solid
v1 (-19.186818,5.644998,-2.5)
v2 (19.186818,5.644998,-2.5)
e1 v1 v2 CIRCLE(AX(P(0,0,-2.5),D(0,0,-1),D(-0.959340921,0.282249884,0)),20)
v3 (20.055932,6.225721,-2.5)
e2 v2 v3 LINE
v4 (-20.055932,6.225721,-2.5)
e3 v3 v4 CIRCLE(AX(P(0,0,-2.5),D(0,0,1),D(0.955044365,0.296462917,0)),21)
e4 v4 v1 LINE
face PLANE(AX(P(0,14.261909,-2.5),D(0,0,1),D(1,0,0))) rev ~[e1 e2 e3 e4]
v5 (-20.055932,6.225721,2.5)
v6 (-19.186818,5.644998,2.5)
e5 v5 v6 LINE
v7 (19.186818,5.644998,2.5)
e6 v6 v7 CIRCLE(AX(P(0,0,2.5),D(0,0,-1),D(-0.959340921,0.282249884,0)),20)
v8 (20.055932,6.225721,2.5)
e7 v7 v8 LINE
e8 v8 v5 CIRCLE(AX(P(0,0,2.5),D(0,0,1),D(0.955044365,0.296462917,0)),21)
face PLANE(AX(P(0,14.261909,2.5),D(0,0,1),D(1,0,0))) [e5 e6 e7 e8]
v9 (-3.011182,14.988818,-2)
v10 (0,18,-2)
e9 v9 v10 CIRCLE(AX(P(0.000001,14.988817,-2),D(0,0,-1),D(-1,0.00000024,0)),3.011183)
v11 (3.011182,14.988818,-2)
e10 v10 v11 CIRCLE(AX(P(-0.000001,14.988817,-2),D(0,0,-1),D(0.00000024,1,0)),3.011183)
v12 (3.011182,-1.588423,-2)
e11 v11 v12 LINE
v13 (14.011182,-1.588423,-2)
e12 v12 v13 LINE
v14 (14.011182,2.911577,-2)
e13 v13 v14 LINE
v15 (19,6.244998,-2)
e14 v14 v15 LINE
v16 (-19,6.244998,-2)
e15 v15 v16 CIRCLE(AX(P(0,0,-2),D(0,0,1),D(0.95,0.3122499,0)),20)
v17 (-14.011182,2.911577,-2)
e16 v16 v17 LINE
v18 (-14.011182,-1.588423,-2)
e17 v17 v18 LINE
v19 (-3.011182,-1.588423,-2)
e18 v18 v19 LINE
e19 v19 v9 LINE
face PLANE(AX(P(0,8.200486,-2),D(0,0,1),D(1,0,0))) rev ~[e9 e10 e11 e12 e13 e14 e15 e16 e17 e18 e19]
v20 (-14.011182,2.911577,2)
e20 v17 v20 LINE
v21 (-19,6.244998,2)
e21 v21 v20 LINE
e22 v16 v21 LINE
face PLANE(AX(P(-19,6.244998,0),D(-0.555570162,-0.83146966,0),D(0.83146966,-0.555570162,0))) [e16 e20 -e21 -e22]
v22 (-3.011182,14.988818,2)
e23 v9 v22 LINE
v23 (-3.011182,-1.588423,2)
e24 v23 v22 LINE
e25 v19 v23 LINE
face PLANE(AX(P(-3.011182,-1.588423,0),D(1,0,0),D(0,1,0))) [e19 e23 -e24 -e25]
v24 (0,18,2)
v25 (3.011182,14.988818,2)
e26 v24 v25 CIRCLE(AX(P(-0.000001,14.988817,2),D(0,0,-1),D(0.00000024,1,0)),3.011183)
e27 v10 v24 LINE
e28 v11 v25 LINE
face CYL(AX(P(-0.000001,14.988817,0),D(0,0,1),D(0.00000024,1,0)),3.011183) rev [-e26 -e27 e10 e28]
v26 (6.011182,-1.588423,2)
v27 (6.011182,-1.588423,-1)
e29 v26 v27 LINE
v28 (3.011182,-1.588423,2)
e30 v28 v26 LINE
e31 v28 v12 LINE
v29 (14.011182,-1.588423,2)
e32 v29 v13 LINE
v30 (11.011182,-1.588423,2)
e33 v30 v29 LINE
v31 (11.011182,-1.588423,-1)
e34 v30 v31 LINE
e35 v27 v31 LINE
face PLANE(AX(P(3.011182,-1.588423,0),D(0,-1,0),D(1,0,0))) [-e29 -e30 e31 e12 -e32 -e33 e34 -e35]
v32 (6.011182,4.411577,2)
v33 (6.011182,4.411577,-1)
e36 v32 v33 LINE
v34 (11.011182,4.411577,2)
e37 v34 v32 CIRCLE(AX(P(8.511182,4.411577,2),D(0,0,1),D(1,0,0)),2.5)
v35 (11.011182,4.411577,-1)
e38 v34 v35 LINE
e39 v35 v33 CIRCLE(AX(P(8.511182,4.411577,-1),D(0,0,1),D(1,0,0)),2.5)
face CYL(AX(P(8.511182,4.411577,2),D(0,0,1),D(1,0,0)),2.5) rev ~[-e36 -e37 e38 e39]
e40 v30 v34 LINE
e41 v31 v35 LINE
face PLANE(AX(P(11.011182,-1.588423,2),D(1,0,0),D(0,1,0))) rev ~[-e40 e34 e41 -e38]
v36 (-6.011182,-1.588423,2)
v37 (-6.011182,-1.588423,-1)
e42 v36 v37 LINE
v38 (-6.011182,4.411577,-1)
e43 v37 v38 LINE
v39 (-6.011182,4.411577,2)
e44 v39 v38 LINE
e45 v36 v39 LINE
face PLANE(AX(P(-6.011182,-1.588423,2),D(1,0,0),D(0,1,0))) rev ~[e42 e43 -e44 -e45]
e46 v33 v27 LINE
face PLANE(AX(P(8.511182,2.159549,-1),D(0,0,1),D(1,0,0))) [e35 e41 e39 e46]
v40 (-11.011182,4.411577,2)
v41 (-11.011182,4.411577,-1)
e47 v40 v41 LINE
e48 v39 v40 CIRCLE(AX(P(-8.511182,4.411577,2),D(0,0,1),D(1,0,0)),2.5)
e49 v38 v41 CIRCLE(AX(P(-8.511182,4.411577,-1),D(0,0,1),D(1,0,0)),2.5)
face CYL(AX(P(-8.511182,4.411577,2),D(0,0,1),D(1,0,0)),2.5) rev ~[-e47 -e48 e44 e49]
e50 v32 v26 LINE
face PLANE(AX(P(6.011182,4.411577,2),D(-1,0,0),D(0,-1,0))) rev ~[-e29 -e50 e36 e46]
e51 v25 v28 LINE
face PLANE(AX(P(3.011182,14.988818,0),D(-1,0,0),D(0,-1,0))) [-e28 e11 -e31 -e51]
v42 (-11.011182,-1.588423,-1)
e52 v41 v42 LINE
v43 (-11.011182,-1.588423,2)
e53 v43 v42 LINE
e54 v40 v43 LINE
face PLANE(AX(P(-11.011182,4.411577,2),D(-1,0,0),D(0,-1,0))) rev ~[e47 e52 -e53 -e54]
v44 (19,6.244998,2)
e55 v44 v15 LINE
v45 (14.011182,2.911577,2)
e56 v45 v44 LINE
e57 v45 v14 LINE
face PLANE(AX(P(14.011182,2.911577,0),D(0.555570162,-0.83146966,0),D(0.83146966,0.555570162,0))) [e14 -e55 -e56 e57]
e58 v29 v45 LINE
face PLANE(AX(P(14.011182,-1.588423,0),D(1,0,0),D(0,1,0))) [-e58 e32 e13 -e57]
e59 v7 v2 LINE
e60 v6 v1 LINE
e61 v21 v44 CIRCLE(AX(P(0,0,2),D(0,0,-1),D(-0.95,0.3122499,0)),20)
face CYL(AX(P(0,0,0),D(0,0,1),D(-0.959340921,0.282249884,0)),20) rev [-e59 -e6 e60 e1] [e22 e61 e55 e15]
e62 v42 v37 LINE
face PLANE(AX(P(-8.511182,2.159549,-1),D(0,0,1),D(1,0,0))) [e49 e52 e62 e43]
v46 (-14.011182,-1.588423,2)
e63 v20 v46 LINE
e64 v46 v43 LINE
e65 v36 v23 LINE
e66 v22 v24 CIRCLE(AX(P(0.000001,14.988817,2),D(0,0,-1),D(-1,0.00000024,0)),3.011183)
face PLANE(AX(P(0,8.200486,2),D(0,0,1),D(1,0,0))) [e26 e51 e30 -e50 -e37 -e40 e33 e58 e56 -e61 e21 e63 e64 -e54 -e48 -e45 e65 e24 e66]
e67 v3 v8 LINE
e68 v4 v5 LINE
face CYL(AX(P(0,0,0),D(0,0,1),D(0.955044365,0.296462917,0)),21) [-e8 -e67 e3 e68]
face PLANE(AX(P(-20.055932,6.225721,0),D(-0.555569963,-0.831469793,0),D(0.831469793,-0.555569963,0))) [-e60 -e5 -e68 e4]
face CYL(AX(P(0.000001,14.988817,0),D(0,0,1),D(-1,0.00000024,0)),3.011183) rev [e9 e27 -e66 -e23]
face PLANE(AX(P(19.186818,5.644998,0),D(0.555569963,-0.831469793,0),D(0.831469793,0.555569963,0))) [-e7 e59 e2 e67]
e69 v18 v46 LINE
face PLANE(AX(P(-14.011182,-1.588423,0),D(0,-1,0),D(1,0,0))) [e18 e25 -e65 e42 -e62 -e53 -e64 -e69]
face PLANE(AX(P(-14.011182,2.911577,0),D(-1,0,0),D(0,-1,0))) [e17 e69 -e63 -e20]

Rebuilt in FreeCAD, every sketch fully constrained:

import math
import FreeCAD as App
import Part
import Sketcher
from FreeCAD import Vector
Q = App.Units.Quantity

doc = App.newDocument("Part")
body = doc.addObject("PartDesign::Body", "Body")

# Sketch on XY plane
sketch1 = doc.addObject("Sketcher::SketchObject", "Sketch")
body.addObject(sketch1)
sketch1.AttachmentSupport = (doc.XY_Plane, [""])
sketch1.MapMode = "FlatFace"
sketch1.addGeometry(Part.LineSegment(Vector(14, 2.9, 0), Vector(19, 6.2, 0)), False)
sketch1.addGeometry(Part.ArcOfCircle(Part.Circle(Vector(0, 0, 0), Vector(0, 0, 1), 20), math.radians(18), math.radians(162)), False)
sketch1.addGeometry(Part.LineSegment(Vector(-19, 6.2, 0), Vector(-14, 2.9, 0)), False)
sketch1.addGeometry(Part.LineSegment(Vector(-14, 2.9, 0), Vector(-14, -1.6, 0)), False)
sketch1.addGeometry(Part.LineSegment(Vector(-14, -1.6, 0), Vector(-3, -1.6, 0)), False)
sketch1.addGeometry(Part.LineSegment(Vector(-3, -1.6, 0), Vector(-3, 15, 0)), False)
sketch1.addGeometry(Part.ArcOfCircle(Part.Circle(Vector(0, 15, 0), Vector(0, 0, 1), 3), math.radians(90), math.radians(180)), False)
sketch1.addGeometry(Part.ArcOfCircle(Part.Circle(Vector(0, 15, 0), Vector(0, 0, 1), 3), math.radians(0), math.radians(90)), False)
sketch1.addGeometry(Part.LineSegment(Vector(3, 15, 0), Vector(3, -1.6, 0)), False)
sketch1.addGeometry(Part.LineSegment(Vector(3, -1.6, 0), Vector(14, -1.6, 0)), False)
sketch1.addGeometry(Part.LineSegment(Vector(14, -1.6, 0), Vector(14, 2.9, 0)), False)
sketch1.addConstraint(Sketcher.Constraint("Coincident", 0, 2, 1, 1))
sketch1.addConstraint(Sketcher.Constraint("Coincident", 1, 2, 2, 1))
sketch1.addConstraint(Sketcher.Constraint("Coincident", 2, 2, 3, 1))
sketch1.addConstraint(Sketcher.Constraint("Coincident", 3, 2, 4, 1))
sketch1.addConstraint(Sketcher.Constraint("Coincident", 4, 2, 5, 1))
sketch1.addConstraint(Sketcher.Constraint("Tangent", 5, 2, 6, 2))
sketch1.addConstraint(Sketcher.Constraint("Tangent", 6, 1, 7, 2))
sketch1.addConstraint(Sketcher.Constraint("Tangent", 7, 1, 8, 1))
sketch1.addConstraint(Sketcher.Constraint("Coincident", 8, 2, 9, 1))
sketch1.addConstraint(Sketcher.Constraint("Coincident", 9, 2, 10, 1))
sketch1.addConstraint(Sketcher.Constraint("Coincident", 10, 2, 0, 1))
sketch1.addConstraint(Sketcher.Constraint("Vertical", 3))
sketch1.addConstraint(Sketcher.Constraint("Horizontal", 4))
sketch1.addConstraint(Sketcher.Constraint("Vertical", 5))
sketch1.addConstraint(Sketcher.Constraint("Vertical", 8))
sketch1.addConstraint(Sketcher.Constraint("Horizontal", 9))
sketch1.addConstraint(Sketcher.Constraint("Vertical", 10))
sketch1.addConstraint(Sketcher.Constraint("Coincident", 1, 3, -1, 1))
sketch1.addConstraint(Sketcher.Constraint("Equal", 6, 7))
sketch1.addConstraint(Sketcher.Constraint("Symmetric", 4, 2, 8, 2, -2))
sketch1.addConstraint(Sketcher.Constraint("Symmetric", 2, 2, 10, 2, -2))
sketch1.addConstraint(Sketcher.Constraint("PointOnObject", 6, 1, -2))
sketch1.addConstraint(Sketcher.Constraint("Horizontal", 0, 2, 1, 2))
sketch1.addConstraint(Sketcher.Constraint("Radius", 1, 20.0))
sketch1.addConstraint(Sketcher.Constraint("DistanceX", 4, 1, 4, 2, 11.0))
sketch1.addConstraint(Sketcher.Constraint("Distance", 0, 6.0))
sketch1.addConstraint(Sketcher.Constraint("DistanceY", 3, 2, 3, 1, 4.5))
sketch1.addConstraint(Sketcher.Constraint("DistanceX", -1, 1, 0, 2, 19.0))
sketch1.addConstraint(Sketcher.Constraint("DistanceY", -1, 1, 6, 1, 18.0))
sketch1.addConstraint(Sketcher.Constraint("Angle", 0, Q("33.749995 deg")))
pad1 = doc.addObject("PartDesign::Pad", "Pad")
body.addObject(pad1)
pad1.Profile = sketch1
pad1.Type = "TwoLengths"
pad1.Length = 2
pad1.Length2 = 2

# Sketch on XY plane
sketch2 = doc.addObject("Sketcher::SketchObject", "Sketch001")
body.addObject(sketch2)
sketch2.AttachmentSupport = (doc.XY_Plane, [""])
sketch2.MapMode = "FlatFace"
sketch2.addGeometry(Part.LineSegment(Vector(19.2, 5.6, 0), Vector(20.1, 6.2, 0)), False)
sketch2.addGeometry(Part.ArcOfCircle(Part.Circle(Vector(0, 0, 0), Vector(0, 0, 1), 21), math.radians(17), math.radians(163)), False)
sketch2.addGeometry(Part.LineSegment(Vector(-20.1, 6.2, 0), Vector(-19.2, 5.6, 0)), False)
sketch2.addGeometry(Part.ArcOfCircle(Part.Circle(Vector(0, 0, 0), Vector(0, 0, 1), 20), math.radians(16), math.radians(164)), False)
sketch2.addConstraint(Sketcher.Constraint("Coincident", 0, 2, 1, 1))
sketch2.addConstraint(Sketcher.Constraint("Coincident", 1, 2, 2, 1))
sketch2.addConstraint(Sketcher.Constraint("Coincident", 2, 2, 3, 2))
sketch2.addConstraint(Sketcher.Constraint("Coincident", 3, 1, 0, 1))
sketch2.addConstraint(Sketcher.Constraint("Coincident", 1, 3, -1, 1))
sketch2.addConstraint(Sketcher.Constraint("Coincident", 3, 3, -1, 1))
sketch2.addConstraint(Sketcher.Constraint("Horizontal", 0, 2, 1, 2))
sketch2.addConstraint(Sketcher.Constraint("Horizontal", 2, 2, 3, 1))
sketch2.addConstraint(Sketcher.Constraint("Radius", 1, 21.0))
sketch2.addConstraint(Sketcher.Constraint("Radius", 3, 20.0))
sketch2.addConstraint(Sketcher.Constraint("Angle", 0, Q("33.749981 deg")))
sketch2.addConstraint(Sketcher.Constraint("DistanceY", -1, 1, 2, 2, 5.644998))
pad2 = doc.addObject("PartDesign::Pad", "Pad001")
body.addObject(pad2)
pad2.Profile = sketch2
pad2.Type = "TwoLengths"
pad2.Length = 2.5
pad2.Length2 = 2.5

# Sketch on XY plane
sketch3 = doc.addObject("Sketcher::SketchObject", "Sketch002")
body.addObject(sketch3)
sketch3.AttachmentSupport = (doc.XY_Plane, [""])
sketch3.MapMode = "FlatFace"
sketch3.AttachmentOffset = App.Placement(Vector(0, 0, 2), App.Rotation())
sketch3.addGeometry(Part.LineSegment(Vector(-11, 4.4, 0), Vector(-11, -1.6, 0)), False)
sketch3.addGeometry(Part.LineSegment(Vector(-11, -1.6, 0), Vector(-6, -1.6, 0)), False)
sketch3.addGeometry(Part.LineSegment(Vector(-6, -1.6, 0), Vector(-6, 4.4, 0)), False)
sketch3.addGeometry(Part.ArcOfCircle(Part.Circle(Vector(-8.5, 4.4, 0), Vector(0, 0, 1), 2.5), math.radians(0), math.radians(180)), False)
sketch3.addGeometry(Part.LineSegment(Vector(6, 4.4, 0), Vector(6, -1.6, 0)), False)
sketch3.addGeometry(Part.LineSegment(Vector(6, -1.6, 0), Vector(11, -1.6, 0)), False)
sketch3.addGeometry(Part.LineSegment(Vector(11, -1.6, 0), Vector(11, 4.4, 0)), False)
sketch3.addGeometry(Part.ArcOfCircle(Part.Circle(Vector(8.5, 4.4, 0), Vector(0, 0, 1), 2.5), math.radians(0), math.radians(180)), False)
sketch3.addConstraint(Sketcher.Constraint("Coincident", 0, 2, 1, 1))
sketch3.addConstraint(Sketcher.Constraint("Coincident", 1, 2, 2, 1))
sketch3.addConstraint(Sketcher.Constraint("Tangent", 2, 2, 3, 1))
sketch3.addConstraint(Sketcher.Constraint("Tangent", 3, 2, 0, 1))
sketch3.addConstraint(Sketcher.Constraint("Coincident", 4, 2, 5, 1))
sketch3.addConstraint(Sketcher.Constraint("Coincident", 5, 2, 6, 1))
sketch3.addConstraint(Sketcher.Constraint("Tangent", 6, 2, 7, 1))
sketch3.addConstraint(Sketcher.Constraint("Tangent", 7, 2, 4, 1))
sketch3.addConstraint(Sketcher.Constraint("Vertical", 0))
sketch3.addConstraint(Sketcher.Constraint("Horizontal", 1))
sketch3.addConstraint(Sketcher.Constraint("Vertical", 2))
sketch3.addConstraint(Sketcher.Constraint("Vertical", 4))
sketch3.addConstraint(Sketcher.Constraint("Horizontal", 5))
sketch3.addConstraint(Sketcher.Constraint("Vertical", 6))
sketch3.addConstraint(Sketcher.Constraint("Equal", 3, 7))
sketch3.addConstraint(Sketcher.Constraint("Symmetric", 3, 3, 7, 3, -2))
sketch3.addConstraint(Sketcher.Constraint("Horizontal", 1, 2, 4, 2))
sketch3.addConstraint(Sketcher.Constraint("Radius", 3, 2.5))
sketch3.addConstraint(Sketcher.Constraint("DistanceY", 0, 2, 0, 1, 6.0))
sketch3.addConstraint(Sketcher.Constraint("DistanceX", 1, 2, -1, 1, 6.011182))
sketch3.addConstraint(Sketcher.Constraint("DistanceY", -1, 1, 3, 3, 4.411577))
pocket1 = doc.addObject("PartDesign::Pocket", "Pocket")
body.addObject(pocket1)
pocket1.Profile = sketch3
pocket1.Length = 3

doc.recompute()
